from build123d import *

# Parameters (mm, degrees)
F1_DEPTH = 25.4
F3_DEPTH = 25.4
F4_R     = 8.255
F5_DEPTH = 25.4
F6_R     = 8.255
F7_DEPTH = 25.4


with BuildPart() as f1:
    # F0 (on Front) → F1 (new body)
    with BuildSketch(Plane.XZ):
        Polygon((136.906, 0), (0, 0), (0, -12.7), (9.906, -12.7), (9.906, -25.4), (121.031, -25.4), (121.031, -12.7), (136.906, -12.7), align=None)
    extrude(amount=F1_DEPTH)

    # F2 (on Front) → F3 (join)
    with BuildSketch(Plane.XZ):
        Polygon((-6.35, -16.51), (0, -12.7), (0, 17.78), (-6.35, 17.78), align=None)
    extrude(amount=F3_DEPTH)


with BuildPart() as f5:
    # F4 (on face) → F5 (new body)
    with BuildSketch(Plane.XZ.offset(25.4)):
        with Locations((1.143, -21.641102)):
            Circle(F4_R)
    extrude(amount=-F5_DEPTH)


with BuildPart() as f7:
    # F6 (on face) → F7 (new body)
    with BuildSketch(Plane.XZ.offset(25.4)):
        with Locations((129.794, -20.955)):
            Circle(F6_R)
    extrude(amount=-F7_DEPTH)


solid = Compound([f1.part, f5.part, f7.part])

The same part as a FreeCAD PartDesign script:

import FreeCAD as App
import Part
import Sketcher
Q = App.Units.Quantity

doc = App.newDocument("Part")
body = doc.addObject("PartDesign::Body", "Body")

# Sketch on XZ plane
sketch1 = body.newObject("Sketcher::SketchObject", "Sketch")
sketch1.AttachmentSupport = (doc.getObject("XZ_Plane"), [""])
sketch1.MapMode = "FlatFace"
sketch1.addGeometry([
    Part.LineSegment(App.Vector(137, 0, 0), App.Vector(0, 0, 0)),  # 0
    Part.LineSegment(App.Vector(0, 0, 0), App.Vector(0, -13, 0)),  # 1
    Part.LineSegment(App.Vector(0, -13, 0), App.Vector(10, -13, 0)),  # 2
    Part.LineSegment(App.Vector(10, -13, 0), App.Vector(10, -25, 0)),  # 3
    Part.LineSegment(App.Vector(10, -25, 0), App.Vector(121, -25, 0)),  # 4
    Part.LineSegment(App.Vector(121, -25, 0), App.Vector(121, -13, 0)),  # 5
    Part.LineSegment(App.Vector(121, -13, 0), App.Vector(137, -13, 0)),  # 6
    Part.LineSegment(App.Vector(137, -13, 0), App.Vector(137, 0, 0)),  # 7
], False)
sketch1.addConstraint([
    Sketcher.Constraint("Coincident", 0, 2, 1, 1),
    Sketcher.Constraint("Coincident", 1, 2, 2, 1),
    Sketcher.Constraint("Coincident", 2, 2, 3, 1),
    Sketcher.Constraint("Coincident", 3, 2, 4, 1),
    Sketcher.Constraint("Coincident", 4, 2, 5, 1),
    Sketcher.Constraint("Coincident", 5, 2, 6, 1),
    Sketcher.Constraint("Coincident", 6, 2, 7, 1),
    Sketcher.Constraint("Coincident", 7, 2, 0, 1),
    Sketcher.Constraint("Horizontal", 0),
    Sketcher.Constraint("Vertical", 1),
    Sketcher.Constraint("Horizontal", 2),
    Sketcher.Constraint("Vertical", 3),
    Sketcher.Constraint("Horizontal", 4),
    Sketcher.Constraint("Vertical", 5),
    Sketcher.Constraint("Horizontal", 6),
    Sketcher.Constraint("Vertical", 7),
    Sketcher.Constraint("Coincident", 0, 2, -1, 1),
    Sketcher.Constraint("Horizontal", 2, 2, 5, 2),
    Sketcher.Constraint("Equal", 1, 3),
    Sketcher.Constraint("DistanceY", 1, 2, 1, 1, Q("0.5 in")),
    Sketcher.Constraint("DistanceX", 2, 2, 6, 2, Q("5 in")),
    Sketcher.Constraint("DistanceX", 0, 2, 0, 1, Q("5.39 in")),
    Sketcher.Constraint("DistanceX", 4, 1, 4, 2, Q("4.375 in")),
])
pad1 = body.newObject("PartDesign::Pad", "Pad")
pad1.Profile = sketch1
pad1.Length = Q("1 in")

# Sketch on XZ plane
sketch2 = body.newObject("Sketcher::SketchObject", "Sketch001")
sketch2.AttachmentSupport = (doc.getObject("XZ_Plane"), [""])
sketch2.MapMode = "FlatFace"
sketch2.addGeometry([
    Part.LineSegment(App.Vector(-6, -17, 0), App.Vector(0, -13, 0)),
    Part.LineSegment(App.Vector(0, -13, 0), App.Vector(0, 18, 0)),
    Part.LineSegment(App.Vector(0, 18, 0), App.Vector(-6, 18, 0)),
    Part.LineSegment(App.Vector(-6, 18, 0), App.Vector(-6, -17, 0)),
], False)
sketch2.addConstraint([
    Sketcher.Constraint("Coincident", 0, 2, 1, 1),
    Sketcher.Constraint("Coincident", 1, 2, 2, 1),
    Sketcher.Constraint("Coincident", 2, 2, 3, 1),
    Sketcher.Constraint("Coincident", 3, 2, 0, 1),
    Sketcher.Constraint("Vertical", 1),
    Sketcher.Constraint("Horizontal", 2),
    Sketcher.Constraint("Vertical", 3),
    Sketcher.Constraint("PointOnObject", 0, 2, -2),
    Sketcher.Constraint("DistanceY", 1, 1, 1, 2, Q("1.2 in")),
    Sketcher.Constraint("DistanceX", 2, 2, 2, 1, Q("0.25 in")),
    Sketcher.Constraint("DistanceY", 3, 2, 3, 1, Q("1.35 in")),
    Sketcher.Constraint("DistanceY", 0, 2, -1, 1, Q("0.5 in")),
])
pad2 = body.newObject("PartDesign::Pad", "Pad001")
pad2.Profile = sketch2
pad2.Length = Q("1 in")
body2 = doc.addObject("PartDesign::Body", "Body001")

# Sketch on XZ plane
sketch3 = body2.newObject("Sketcher::SketchObject", "Sketch002")
sketch3.AttachmentSupport = (doc.getObject("XZ_Plane001"), [""])
sketch3.MapMode = "FlatFace"
sketch3.AttachmentOffset = App.Placement(App.Vector(0, 0, 1 * 25.4), App.Rotation())
sketch3.addGeometry(Part.Circle(App.Vector(1, -22, 0), App.Vector(0, 0, 1), 8), False)
sketch3.addConstraint([
    Sketcher.Constraint("Diameter", 0, Q("0.65 in")),
    Sketcher.Constraint("DistanceX", -1, 1, 0, 3, Q("0.045 in")),
    Sketcher.Constraint("DistanceY", 0, 3, -1, 1, 21.641102),
])
pad3 = body2.newObject("PartDesign::Pad", "Pad002")
pad3.Profile = sketch3
pad3.Length = Q("1 in")
pad3.Reversed = True
body3 = doc.addObject("PartDesign::Body", "Body002")

# Sketch on XZ plane
sketch4 = body3.newObject("Sketcher::SketchObject", "Sketch003")
sketch4.AttachmentSupport = (doc.getObject("XZ_Plane002"), [""])
sketch4.MapMode = "FlatFace"
sketch4.AttachmentOffset = App.Placement(App.Vector(0, 0, 1 * 25.4), App.Rotation())
sketch4.addGeometry(Part.Circle(App.Vector(130, -21, 0), App.Vector(0, 0, 1), 8), False)
sketch4.addConstraint([
    Sketcher.Constraint("Diameter", 0, Q("0.65 in")),
    Sketcher.Constraint("DistanceX", -1, 1, 0, 3, Q("5.11 in")),
    Sketcher.Constraint("DistanceY", 0, 3, -1, 1, Q("0.825 in")),
])
pad4 = body3.newObject("PartDesign::Pad", "Pad003")
pad4.Profile = sketch4
pad4.Length = Q("1 in")
pad4.Reversed = True

doc.recompute()
